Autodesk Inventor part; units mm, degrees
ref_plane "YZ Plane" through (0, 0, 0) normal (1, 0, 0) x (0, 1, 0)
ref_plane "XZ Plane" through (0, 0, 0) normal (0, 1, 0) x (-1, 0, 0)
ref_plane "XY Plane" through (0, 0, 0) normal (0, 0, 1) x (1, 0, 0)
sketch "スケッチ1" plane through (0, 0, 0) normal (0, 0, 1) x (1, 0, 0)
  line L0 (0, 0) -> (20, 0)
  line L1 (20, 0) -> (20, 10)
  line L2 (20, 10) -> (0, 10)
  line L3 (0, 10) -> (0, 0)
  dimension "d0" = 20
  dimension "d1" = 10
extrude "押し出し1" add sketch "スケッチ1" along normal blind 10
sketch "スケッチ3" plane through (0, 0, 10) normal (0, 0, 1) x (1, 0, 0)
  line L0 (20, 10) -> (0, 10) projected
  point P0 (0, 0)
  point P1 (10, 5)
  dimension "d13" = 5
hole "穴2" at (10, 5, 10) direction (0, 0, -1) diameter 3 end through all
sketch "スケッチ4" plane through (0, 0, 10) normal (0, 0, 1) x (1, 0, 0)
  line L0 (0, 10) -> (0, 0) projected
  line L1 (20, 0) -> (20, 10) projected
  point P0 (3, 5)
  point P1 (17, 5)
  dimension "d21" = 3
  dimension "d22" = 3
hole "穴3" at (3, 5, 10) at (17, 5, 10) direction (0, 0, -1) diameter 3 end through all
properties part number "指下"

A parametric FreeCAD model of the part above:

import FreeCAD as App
import Part
import Sketcher

V = App.Vector

doc = App.newDocument("Part")
body = doc.addObject("PartDesign::Body", "Body")

sketch1 = body.newObject("Sketcher::SketchObject", "Sketch")
sketch1.AttachmentSupport = (doc.getObject("XY_Plane"), [""])
sketch1.MapMode = "FlatFace"
sketch1.addGeometry(Part.LineSegment(V(0, 10, 0), V(0, 0, 0)), False)
sketch1.addGeometry(Part.LineSegment(V(0, 0, 0), V(20, 0, 0)), False)
sketch1.addGeometry(Part.LineSegment(V(20, 0, 0), V(20, 10, 0)), False)
sketch1.addGeometry(Part.LineSegment(V(20, 10, 0), V(0, 10, 0)), False)
sketch1.addConstraint(Sketcher.Constraint("Coincident", 0, 2, 1, 1))
sketch1.addConstraint(Sketcher.Constraint("Coincident", 1, 2, 2, 1))
sketch1.addConstraint(Sketcher.Constraint("Coincident", 2, 2, 3, 1))
sketch1.addConstraint(Sketcher.Constraint("Coincident", 3, 2, 0, 1))
sketch1.addConstraint(Sketcher.Constraint("Vertical", 0))
sketch1.addConstraint(Sketcher.Constraint("Horizontal", 1))
sketch1.addConstraint(Sketcher.Constraint("Vertical", 2))
sketch1.addConstraint(Sketcher.Constraint("Horizontal", 3))
sketch1.addConstraint(Sketcher.Constraint("Coincident", 0, 2, -1, 1))
sketch1.addConstraint(Sketcher.Constraint("DistanceX", 1, 1, 1, 2, 20.0))
sketch1.addConstraint(Sketcher.Constraint("DistanceY", 0, 2, 0, 1, 10.0))
pad1 = body.newObject("PartDesign::Pad", "Pad")
pad1.Profile = sketch1
pad1.Length = 10

sketch2 = body.newObject("Sketcher::SketchObject", "Sketch001")
sketch2.AttachmentSupport = (doc.getObject("XY_Plane"), [""])
sketch2.MapMode = "FlatFace"
sketch2.AttachmentOffset = App.Placement(V(0, 0, 10), App.Rotation())
sketch2.addGeometry(Part.Circle(V(10, 5, 0), V(0, 0, 1), 1.5), False)
sketch2.addConstraint(Sketcher.Constraint("Diameter", 0, 3.0))
sketch2.addConstraint(Sketcher.Constraint("DistanceX", -1, 1, 0, 3, 10.0))
sketch2.addConstraint(Sketcher.Constraint("DistanceY", -1, 1, 0, 3, 5.0))
doc.recompute()
hole = body.newObject("PartDesign::Hole", "Hole")
hole.Profile = sketch2
hole.ThreadType = "None"
hole.Diameter = 3
hole.DepthType = "ThroughAll"

sketch3 = body.newObject("Sketcher::SketchObject", "Sketch002")
sketch3.AttachmentSupport = (doc.getObject("XY_Plane"), [""])
sketch3.MapMode = "FlatFace"
sketch3.AttachmentOffset = App.Placement(V(0, 0, 10), App.Rotation())
sketch3.addGeometry(Part.Circle(V(3, 5, 0), V(0, 0, 1), 1.5), False)
sketch3.addGeometry(Part.Circle(V(17, 5, 0), V(0, 0, 1), 1.5), False)
sketch3.addConstraint(Sketcher.Constraint("Equal", 0, 1))
sketch3.addConstraint(Sketcher.Constraint("Horizontal", 0, 3, 1, 3))
sketch3.addConstraint(Sketcher.Constraint("Diameter", 0, 3.0))
sketch3.addConstraint(Sketcher.Constraint("DistanceX", -1, 1, 0, 3, 3.0))
sketch3.addConstraint(Sketcher.Constraint("DistanceY", -1, 1, 0, 3, 5.0))
sketch3.addConstraint(Sketcher.Constraint("DistanceX", -1, 1, 1, 3, 17.0))
doc.recompute()
hole2 = body.newObject("PartDesign::Hole", "Hole001")
hole2.Profile = sketch3
hole2.ThreadType = "None"
hole2.Diameter = 3
hole2.DepthType = "ThroughAll"

doc.recompute()
